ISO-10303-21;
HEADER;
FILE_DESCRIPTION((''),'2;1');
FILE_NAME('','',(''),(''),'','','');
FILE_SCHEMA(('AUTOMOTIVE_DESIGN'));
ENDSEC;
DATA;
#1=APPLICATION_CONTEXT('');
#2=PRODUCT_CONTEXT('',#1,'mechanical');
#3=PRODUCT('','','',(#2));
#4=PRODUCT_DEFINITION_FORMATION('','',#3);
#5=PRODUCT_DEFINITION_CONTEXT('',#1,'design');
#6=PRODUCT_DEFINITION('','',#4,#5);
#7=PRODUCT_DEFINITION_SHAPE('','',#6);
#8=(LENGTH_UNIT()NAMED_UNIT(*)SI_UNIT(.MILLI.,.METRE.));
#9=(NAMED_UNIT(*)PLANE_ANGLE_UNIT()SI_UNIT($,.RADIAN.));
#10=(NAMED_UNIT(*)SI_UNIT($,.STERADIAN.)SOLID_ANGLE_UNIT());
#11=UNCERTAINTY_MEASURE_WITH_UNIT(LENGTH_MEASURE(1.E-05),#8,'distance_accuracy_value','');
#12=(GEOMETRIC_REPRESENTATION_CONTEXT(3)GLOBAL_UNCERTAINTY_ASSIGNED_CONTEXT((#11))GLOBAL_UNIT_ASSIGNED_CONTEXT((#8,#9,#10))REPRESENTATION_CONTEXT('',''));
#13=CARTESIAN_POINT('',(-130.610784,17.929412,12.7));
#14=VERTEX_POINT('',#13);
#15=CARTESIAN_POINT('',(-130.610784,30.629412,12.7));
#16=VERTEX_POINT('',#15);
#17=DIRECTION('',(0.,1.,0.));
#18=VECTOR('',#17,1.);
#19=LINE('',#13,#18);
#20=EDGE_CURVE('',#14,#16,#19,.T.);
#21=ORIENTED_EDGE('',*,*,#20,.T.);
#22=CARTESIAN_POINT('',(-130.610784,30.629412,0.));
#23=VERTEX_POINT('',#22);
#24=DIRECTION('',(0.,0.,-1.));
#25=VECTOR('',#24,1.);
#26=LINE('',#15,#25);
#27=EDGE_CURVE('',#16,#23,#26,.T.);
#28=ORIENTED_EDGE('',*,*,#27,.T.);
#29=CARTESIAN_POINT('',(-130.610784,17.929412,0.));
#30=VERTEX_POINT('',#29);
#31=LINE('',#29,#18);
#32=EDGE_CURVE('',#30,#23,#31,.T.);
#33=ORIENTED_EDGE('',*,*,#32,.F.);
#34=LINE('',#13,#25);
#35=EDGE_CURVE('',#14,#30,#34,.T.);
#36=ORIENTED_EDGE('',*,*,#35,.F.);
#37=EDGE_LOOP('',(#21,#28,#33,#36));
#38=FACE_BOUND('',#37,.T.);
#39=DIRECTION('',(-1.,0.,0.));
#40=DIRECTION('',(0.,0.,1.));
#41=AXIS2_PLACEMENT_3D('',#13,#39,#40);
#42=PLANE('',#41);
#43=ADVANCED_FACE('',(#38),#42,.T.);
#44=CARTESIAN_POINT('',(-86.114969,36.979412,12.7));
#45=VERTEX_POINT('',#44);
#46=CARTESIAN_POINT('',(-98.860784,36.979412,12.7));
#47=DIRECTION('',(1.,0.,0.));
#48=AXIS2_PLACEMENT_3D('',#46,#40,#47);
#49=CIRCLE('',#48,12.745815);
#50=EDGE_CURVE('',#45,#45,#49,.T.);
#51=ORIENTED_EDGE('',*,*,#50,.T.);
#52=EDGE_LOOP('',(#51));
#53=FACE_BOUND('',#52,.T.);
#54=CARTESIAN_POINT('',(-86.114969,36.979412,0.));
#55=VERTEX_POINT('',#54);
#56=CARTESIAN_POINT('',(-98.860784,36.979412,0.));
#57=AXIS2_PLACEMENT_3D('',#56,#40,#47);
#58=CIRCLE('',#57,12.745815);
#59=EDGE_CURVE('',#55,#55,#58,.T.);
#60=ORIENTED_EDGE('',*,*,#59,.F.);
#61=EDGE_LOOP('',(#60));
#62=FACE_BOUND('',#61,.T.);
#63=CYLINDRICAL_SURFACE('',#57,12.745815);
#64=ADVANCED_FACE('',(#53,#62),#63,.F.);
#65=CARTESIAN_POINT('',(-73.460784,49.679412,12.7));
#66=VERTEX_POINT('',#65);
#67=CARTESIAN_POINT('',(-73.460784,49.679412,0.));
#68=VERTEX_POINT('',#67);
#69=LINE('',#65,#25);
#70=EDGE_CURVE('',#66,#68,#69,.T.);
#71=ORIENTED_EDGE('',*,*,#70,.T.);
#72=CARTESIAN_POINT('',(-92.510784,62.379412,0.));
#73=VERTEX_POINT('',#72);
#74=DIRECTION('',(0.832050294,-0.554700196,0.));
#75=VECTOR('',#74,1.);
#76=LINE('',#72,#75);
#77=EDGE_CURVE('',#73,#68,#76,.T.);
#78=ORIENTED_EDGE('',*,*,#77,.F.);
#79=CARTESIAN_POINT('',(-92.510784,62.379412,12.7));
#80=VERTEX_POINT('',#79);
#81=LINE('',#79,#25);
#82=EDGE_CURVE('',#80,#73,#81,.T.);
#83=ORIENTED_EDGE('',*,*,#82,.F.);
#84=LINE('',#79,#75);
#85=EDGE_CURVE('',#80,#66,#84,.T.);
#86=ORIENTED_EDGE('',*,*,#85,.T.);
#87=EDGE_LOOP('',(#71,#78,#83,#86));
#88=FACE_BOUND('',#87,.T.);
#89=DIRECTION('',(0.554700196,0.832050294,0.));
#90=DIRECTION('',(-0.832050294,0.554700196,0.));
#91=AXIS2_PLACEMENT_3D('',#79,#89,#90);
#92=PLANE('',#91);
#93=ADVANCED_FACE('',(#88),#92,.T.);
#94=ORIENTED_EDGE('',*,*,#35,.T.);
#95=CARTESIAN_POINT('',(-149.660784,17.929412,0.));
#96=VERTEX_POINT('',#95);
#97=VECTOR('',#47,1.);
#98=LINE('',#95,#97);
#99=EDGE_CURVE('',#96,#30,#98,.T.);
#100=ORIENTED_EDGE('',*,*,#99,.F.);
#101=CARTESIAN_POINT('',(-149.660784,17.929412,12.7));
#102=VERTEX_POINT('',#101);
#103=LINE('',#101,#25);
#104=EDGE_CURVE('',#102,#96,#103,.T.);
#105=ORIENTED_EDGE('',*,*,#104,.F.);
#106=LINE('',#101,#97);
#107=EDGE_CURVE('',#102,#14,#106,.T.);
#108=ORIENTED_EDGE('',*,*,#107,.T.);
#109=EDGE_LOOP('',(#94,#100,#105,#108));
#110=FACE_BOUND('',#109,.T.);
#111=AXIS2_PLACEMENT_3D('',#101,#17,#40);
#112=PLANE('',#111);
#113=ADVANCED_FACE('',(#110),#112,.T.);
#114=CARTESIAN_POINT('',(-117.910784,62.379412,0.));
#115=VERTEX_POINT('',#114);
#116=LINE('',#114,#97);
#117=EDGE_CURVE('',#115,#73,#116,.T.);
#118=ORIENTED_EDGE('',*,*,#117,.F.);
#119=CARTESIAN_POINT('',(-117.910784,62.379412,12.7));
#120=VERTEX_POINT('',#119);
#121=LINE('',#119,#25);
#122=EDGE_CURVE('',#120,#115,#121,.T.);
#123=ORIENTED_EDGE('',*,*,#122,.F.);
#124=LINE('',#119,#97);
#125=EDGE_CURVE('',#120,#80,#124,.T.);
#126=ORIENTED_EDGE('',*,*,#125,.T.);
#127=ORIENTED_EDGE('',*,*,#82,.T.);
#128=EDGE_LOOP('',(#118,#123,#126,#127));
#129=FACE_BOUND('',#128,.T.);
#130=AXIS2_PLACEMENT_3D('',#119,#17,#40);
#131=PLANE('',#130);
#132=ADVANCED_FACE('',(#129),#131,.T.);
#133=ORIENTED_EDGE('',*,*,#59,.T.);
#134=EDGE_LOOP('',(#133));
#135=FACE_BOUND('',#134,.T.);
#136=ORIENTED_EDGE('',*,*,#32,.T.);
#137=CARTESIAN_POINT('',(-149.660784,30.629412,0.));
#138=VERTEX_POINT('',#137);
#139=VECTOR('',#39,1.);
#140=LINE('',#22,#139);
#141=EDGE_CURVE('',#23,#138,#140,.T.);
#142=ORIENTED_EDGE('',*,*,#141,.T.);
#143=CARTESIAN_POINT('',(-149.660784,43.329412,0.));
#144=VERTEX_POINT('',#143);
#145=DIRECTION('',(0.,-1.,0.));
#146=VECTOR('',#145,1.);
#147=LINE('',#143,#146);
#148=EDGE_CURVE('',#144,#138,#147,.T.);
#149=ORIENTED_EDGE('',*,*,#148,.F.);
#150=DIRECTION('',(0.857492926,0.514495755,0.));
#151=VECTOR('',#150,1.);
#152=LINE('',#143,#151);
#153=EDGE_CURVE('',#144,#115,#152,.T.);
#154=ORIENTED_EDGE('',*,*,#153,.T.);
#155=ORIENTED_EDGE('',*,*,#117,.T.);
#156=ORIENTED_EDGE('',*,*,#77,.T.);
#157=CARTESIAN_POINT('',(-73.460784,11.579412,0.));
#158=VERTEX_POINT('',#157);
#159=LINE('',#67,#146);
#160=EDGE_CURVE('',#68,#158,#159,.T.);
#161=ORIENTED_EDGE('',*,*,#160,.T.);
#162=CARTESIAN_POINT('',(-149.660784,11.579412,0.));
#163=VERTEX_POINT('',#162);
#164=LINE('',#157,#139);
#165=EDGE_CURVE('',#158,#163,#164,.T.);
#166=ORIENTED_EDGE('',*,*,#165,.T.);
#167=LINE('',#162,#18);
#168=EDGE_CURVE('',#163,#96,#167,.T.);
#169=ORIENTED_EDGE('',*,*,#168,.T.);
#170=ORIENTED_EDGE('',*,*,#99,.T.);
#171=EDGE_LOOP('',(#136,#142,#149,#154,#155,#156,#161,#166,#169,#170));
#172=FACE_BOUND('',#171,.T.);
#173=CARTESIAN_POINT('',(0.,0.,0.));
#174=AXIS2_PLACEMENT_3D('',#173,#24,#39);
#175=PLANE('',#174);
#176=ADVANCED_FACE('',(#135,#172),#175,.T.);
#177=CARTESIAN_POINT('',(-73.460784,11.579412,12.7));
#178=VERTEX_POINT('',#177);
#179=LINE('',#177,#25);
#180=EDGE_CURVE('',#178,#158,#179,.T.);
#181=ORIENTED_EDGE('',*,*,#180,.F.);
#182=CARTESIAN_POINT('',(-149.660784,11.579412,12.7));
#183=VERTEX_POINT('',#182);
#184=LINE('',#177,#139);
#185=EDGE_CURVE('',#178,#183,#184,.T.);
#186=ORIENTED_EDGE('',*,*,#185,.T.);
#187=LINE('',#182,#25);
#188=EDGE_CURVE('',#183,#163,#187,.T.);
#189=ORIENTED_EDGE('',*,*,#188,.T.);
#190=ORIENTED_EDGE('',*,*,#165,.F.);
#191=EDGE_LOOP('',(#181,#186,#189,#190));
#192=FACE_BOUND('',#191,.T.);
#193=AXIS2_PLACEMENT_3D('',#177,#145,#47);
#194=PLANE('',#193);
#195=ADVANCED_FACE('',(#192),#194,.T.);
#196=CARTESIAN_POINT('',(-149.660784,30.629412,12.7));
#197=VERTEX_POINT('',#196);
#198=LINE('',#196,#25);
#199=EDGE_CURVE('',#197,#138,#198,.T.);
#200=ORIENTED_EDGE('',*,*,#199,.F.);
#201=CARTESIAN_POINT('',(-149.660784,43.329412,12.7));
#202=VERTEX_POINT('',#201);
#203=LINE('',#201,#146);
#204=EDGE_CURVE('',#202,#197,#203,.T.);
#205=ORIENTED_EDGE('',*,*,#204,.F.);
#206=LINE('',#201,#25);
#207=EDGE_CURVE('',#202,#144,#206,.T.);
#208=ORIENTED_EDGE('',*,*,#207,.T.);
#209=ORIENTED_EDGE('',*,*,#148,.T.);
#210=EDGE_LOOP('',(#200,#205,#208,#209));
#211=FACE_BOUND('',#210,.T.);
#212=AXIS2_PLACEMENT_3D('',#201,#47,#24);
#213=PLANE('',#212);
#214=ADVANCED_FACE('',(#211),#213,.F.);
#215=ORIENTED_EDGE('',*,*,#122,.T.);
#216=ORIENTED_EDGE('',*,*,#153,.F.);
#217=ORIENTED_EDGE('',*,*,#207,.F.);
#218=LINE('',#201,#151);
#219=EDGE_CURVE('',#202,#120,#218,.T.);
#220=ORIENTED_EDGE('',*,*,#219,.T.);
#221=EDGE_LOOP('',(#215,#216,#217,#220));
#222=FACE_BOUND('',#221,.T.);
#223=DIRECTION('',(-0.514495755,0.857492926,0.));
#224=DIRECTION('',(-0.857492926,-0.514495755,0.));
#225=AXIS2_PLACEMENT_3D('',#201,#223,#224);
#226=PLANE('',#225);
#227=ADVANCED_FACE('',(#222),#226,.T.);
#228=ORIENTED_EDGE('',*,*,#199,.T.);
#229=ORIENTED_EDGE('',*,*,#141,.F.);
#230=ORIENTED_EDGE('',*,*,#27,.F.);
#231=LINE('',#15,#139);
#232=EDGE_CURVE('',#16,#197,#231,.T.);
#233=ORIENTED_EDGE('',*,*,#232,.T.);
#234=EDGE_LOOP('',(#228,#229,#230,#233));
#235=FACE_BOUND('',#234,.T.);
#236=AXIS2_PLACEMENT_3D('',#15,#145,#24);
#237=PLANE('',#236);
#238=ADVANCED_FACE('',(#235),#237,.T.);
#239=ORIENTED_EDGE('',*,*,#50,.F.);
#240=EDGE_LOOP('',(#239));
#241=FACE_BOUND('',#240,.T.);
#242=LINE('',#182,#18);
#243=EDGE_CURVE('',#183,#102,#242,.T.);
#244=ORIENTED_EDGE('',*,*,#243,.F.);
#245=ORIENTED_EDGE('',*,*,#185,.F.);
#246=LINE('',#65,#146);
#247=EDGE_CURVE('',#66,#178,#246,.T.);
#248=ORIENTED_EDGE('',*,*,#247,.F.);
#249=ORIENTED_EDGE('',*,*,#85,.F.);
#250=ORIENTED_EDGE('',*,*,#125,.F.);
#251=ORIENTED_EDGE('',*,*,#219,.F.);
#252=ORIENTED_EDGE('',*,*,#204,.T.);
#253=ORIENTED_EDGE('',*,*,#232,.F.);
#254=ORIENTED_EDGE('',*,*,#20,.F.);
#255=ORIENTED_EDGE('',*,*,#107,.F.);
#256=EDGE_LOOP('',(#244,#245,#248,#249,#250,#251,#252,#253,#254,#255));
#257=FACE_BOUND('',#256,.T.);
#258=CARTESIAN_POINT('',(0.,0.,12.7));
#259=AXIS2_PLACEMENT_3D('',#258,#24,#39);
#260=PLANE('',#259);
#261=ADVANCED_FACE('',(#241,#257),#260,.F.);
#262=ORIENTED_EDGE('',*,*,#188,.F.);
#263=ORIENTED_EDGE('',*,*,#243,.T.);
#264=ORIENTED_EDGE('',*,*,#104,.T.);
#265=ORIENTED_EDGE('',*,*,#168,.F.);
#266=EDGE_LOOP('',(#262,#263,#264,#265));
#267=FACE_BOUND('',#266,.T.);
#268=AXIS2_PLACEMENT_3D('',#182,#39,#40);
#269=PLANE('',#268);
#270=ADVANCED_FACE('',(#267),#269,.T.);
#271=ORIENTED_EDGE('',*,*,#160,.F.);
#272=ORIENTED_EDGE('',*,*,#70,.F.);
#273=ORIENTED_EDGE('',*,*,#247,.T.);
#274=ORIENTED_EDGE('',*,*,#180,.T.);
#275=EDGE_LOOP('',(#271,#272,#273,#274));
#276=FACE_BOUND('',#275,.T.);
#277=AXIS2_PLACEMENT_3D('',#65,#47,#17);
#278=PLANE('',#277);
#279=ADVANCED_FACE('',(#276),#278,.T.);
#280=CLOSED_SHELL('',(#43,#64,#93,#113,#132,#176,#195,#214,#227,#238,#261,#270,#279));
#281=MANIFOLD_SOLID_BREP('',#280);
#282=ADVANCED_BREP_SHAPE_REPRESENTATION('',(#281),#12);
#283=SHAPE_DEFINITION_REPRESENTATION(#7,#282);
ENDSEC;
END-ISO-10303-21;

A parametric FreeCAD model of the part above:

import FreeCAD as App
import Part
import Sketcher

V = App.Vector
Q = App.Units.Quantity

doc = App.newDocument("Part")
body = doc.addObject("PartDesign::Body", "Body")

# Sketch on XY plane
sketch1 = body.newObject("Sketcher::SketchObject", "Sketch")
sketch1.AttachmentSupport = (doc.getObject("XY_Plane"), [""])
sketch1.MapMode = "FlatFace"
sketch1.addGeometry(Part.LineSegment(V(-93, 62, 0), V(-118, 62, 0)), False)
sketch1.addGeometry(Part.LineSegment(V(-118, 62, 0), V(-150, 43, 0)), False)
sketch1.addGeometry(Part.LineSegment(V(-150, 43, 0), V(-150, 31, 0)), False)
sketch1.addGeometry(Part.LineSegment(V(-150, 31, 0), V(-131, 31, 0)), False)
sketch1.addGeometry(Part.LineSegment(V(-131, 31, 0), V(-131, 18, 0)), False)
sketch1.addGeometry(Part.LineSegment(V(-131, 18, 0), V(-150, 18, 0)), False)
sketch1.addGeometry(Part.LineSegment(V(-150, 18, 0), V(-150, 12, 0)), False)
sketch1.addGeometry(Part.LineSegment(V(-150, 12, 0), V(-73, 12, 0)), False)
sketch1.addGeometry(Part.LineSegment(V(-73, 12, 0), V(-73, 50, 0)), False)
sketch1.addGeometry(Part.LineSegment(V(-73, 50, 0), V(-93, 62, 0)), False)
sketch1.addConstraint(Sketcher.Constraint("Coincident", 0, 2, 1, 1))
sketch1.addConstraint(Sketcher.Constraint("Coincident", 1, 2, 2, 1))
sketch1.addConstraint(Sketcher.Constraint("Coincident", 2, 2, 3, 1))
sketch1.addConstraint(Sketcher.Constraint("Coincident", 3, 2, 4, 1))
sketch1.addConstraint(Sketcher.Constraint("Coincident", 4, 2, 5, 1))
sketch1.addConstraint(Sketcher.Constraint("Coincident", 5, 2, 6, 1))
sketch1.addConstraint(Sketcher.Constraint("Coincident", 6, 2, 7, 1))
sketch1.addConstraint(Sketcher.Constraint("Coincident", 7, 2, 8, 1))
sketch1.addConstraint(Sketcher.Constraint("Coincident", 8, 2, 9, 1))
sketch1.addConstraint(Sketcher.Constraint("Coincident", 9, 2, 0, 1))
sketch1.addConstraint(Sketcher.Constraint("Horizontal", 0))
sketch1.addConstraint(Sketcher.Constraint("Vertical", 2))
sketch1.addConstraint(Sketcher.Constraint("Horizontal", 3))
sketch1.addConstraint(Sketcher.Constraint("Vertical", 4))
sketch1.addConstraint(Sketcher.Constraint("Horizontal", 5))
sketch1.addConstraint(Sketcher.Constraint("Vertical", 6))
sketch1.addConstraint(Sketcher.Constraint("Horizontal", 7))
sketch1.addConstraint(Sketcher.Constraint("Vertical", 8))
sketch1.addConstraint(Sketcher.Constraint("Vertical", 2, 2, 5, 2))
sketch1.addConstraint(Sketcher.Constraint("Equal", 2, 4))
sketch1.addConstraint(Sketcher.Constraint("DistanceX", 0, 2, 0, 1, Q("1 in")))
sketch1.addConstraint(Sketcher.Constraint("DistanceX", 7, 1, 7, 2, Q("3 in")))
sketch1.addConstraint(Sketcher.Constraint("DistanceY", 2, 2, 2, 1, Q("0.5 in")))
sketch1.addConstraint(Sketcher.Constraint("DistanceY", 8, 1, 8, 2, Q("1.5 in")))
sketch1.addConstraint(Sketcher.Constraint("DistanceY", 7, 2, 0, 2, Q("2 in")))
sketch1.addConstraint(Sketcher.Constraint("DistanceX", 3, 1, 3, 2, Q("0.75 in")))
sketch1.addConstraint(Sketcher.Constraint("DistanceY", 6, 2, 6, 1, Q("0.25 in")))
sketch1.addConstraint(Sketcher.Constraint("DistanceX", 3, 2, 0, 2, Q("0.5 in")))
sketch1.addConstraint(Sketcher.Constraint("DistanceY", -1, 1, 0, 2, Q("62.379412 mm")))
sketch1.addConstraint(Sketcher.Constraint("DistanceX", 0, 2, -1, 1, Q("117.910784 mm")))
pad1 = body.newObject("PartDesign::Pad", "Pad")
pad1.Profile = sketch1
pad1.Length = Q("0.5 in")

# Sketch on XY plane
sketch2 = body.newObject("Sketcher::SketchObject", "Sketch001")
sketch2.AttachmentSupport = (doc.getObject("XY_Plane"), [""])
sketch2.MapMode = "FlatFace"
sketch2.AttachmentOffset = App.Placement(V(0, 0, 0.5 * 25.4), App.Rotation())
sketch2.addGeometry(Part.Circle(V(-99, 37, 0), V(0, 0, 1), 13), False)
sketch2.addConstraint(Sketcher.Constraint("Diameter", 0, Q("25.491631 mm")))
sketch2.addConstraint(Sketcher.Constraint("DistanceY", -1, 1, 0, 3, Q("36.979412 mm")))
sketch2.addConstraint(Sketcher.Constraint("DistanceX", 0, 3, -1, 1, Q("98.860784 mm")))
pocket1 = body.newObject("PartDesign::Pocket", "Pocket")
pocket1.Profile = sketch2
pocket1.Type = "ThroughAll"

doc.recompute()
